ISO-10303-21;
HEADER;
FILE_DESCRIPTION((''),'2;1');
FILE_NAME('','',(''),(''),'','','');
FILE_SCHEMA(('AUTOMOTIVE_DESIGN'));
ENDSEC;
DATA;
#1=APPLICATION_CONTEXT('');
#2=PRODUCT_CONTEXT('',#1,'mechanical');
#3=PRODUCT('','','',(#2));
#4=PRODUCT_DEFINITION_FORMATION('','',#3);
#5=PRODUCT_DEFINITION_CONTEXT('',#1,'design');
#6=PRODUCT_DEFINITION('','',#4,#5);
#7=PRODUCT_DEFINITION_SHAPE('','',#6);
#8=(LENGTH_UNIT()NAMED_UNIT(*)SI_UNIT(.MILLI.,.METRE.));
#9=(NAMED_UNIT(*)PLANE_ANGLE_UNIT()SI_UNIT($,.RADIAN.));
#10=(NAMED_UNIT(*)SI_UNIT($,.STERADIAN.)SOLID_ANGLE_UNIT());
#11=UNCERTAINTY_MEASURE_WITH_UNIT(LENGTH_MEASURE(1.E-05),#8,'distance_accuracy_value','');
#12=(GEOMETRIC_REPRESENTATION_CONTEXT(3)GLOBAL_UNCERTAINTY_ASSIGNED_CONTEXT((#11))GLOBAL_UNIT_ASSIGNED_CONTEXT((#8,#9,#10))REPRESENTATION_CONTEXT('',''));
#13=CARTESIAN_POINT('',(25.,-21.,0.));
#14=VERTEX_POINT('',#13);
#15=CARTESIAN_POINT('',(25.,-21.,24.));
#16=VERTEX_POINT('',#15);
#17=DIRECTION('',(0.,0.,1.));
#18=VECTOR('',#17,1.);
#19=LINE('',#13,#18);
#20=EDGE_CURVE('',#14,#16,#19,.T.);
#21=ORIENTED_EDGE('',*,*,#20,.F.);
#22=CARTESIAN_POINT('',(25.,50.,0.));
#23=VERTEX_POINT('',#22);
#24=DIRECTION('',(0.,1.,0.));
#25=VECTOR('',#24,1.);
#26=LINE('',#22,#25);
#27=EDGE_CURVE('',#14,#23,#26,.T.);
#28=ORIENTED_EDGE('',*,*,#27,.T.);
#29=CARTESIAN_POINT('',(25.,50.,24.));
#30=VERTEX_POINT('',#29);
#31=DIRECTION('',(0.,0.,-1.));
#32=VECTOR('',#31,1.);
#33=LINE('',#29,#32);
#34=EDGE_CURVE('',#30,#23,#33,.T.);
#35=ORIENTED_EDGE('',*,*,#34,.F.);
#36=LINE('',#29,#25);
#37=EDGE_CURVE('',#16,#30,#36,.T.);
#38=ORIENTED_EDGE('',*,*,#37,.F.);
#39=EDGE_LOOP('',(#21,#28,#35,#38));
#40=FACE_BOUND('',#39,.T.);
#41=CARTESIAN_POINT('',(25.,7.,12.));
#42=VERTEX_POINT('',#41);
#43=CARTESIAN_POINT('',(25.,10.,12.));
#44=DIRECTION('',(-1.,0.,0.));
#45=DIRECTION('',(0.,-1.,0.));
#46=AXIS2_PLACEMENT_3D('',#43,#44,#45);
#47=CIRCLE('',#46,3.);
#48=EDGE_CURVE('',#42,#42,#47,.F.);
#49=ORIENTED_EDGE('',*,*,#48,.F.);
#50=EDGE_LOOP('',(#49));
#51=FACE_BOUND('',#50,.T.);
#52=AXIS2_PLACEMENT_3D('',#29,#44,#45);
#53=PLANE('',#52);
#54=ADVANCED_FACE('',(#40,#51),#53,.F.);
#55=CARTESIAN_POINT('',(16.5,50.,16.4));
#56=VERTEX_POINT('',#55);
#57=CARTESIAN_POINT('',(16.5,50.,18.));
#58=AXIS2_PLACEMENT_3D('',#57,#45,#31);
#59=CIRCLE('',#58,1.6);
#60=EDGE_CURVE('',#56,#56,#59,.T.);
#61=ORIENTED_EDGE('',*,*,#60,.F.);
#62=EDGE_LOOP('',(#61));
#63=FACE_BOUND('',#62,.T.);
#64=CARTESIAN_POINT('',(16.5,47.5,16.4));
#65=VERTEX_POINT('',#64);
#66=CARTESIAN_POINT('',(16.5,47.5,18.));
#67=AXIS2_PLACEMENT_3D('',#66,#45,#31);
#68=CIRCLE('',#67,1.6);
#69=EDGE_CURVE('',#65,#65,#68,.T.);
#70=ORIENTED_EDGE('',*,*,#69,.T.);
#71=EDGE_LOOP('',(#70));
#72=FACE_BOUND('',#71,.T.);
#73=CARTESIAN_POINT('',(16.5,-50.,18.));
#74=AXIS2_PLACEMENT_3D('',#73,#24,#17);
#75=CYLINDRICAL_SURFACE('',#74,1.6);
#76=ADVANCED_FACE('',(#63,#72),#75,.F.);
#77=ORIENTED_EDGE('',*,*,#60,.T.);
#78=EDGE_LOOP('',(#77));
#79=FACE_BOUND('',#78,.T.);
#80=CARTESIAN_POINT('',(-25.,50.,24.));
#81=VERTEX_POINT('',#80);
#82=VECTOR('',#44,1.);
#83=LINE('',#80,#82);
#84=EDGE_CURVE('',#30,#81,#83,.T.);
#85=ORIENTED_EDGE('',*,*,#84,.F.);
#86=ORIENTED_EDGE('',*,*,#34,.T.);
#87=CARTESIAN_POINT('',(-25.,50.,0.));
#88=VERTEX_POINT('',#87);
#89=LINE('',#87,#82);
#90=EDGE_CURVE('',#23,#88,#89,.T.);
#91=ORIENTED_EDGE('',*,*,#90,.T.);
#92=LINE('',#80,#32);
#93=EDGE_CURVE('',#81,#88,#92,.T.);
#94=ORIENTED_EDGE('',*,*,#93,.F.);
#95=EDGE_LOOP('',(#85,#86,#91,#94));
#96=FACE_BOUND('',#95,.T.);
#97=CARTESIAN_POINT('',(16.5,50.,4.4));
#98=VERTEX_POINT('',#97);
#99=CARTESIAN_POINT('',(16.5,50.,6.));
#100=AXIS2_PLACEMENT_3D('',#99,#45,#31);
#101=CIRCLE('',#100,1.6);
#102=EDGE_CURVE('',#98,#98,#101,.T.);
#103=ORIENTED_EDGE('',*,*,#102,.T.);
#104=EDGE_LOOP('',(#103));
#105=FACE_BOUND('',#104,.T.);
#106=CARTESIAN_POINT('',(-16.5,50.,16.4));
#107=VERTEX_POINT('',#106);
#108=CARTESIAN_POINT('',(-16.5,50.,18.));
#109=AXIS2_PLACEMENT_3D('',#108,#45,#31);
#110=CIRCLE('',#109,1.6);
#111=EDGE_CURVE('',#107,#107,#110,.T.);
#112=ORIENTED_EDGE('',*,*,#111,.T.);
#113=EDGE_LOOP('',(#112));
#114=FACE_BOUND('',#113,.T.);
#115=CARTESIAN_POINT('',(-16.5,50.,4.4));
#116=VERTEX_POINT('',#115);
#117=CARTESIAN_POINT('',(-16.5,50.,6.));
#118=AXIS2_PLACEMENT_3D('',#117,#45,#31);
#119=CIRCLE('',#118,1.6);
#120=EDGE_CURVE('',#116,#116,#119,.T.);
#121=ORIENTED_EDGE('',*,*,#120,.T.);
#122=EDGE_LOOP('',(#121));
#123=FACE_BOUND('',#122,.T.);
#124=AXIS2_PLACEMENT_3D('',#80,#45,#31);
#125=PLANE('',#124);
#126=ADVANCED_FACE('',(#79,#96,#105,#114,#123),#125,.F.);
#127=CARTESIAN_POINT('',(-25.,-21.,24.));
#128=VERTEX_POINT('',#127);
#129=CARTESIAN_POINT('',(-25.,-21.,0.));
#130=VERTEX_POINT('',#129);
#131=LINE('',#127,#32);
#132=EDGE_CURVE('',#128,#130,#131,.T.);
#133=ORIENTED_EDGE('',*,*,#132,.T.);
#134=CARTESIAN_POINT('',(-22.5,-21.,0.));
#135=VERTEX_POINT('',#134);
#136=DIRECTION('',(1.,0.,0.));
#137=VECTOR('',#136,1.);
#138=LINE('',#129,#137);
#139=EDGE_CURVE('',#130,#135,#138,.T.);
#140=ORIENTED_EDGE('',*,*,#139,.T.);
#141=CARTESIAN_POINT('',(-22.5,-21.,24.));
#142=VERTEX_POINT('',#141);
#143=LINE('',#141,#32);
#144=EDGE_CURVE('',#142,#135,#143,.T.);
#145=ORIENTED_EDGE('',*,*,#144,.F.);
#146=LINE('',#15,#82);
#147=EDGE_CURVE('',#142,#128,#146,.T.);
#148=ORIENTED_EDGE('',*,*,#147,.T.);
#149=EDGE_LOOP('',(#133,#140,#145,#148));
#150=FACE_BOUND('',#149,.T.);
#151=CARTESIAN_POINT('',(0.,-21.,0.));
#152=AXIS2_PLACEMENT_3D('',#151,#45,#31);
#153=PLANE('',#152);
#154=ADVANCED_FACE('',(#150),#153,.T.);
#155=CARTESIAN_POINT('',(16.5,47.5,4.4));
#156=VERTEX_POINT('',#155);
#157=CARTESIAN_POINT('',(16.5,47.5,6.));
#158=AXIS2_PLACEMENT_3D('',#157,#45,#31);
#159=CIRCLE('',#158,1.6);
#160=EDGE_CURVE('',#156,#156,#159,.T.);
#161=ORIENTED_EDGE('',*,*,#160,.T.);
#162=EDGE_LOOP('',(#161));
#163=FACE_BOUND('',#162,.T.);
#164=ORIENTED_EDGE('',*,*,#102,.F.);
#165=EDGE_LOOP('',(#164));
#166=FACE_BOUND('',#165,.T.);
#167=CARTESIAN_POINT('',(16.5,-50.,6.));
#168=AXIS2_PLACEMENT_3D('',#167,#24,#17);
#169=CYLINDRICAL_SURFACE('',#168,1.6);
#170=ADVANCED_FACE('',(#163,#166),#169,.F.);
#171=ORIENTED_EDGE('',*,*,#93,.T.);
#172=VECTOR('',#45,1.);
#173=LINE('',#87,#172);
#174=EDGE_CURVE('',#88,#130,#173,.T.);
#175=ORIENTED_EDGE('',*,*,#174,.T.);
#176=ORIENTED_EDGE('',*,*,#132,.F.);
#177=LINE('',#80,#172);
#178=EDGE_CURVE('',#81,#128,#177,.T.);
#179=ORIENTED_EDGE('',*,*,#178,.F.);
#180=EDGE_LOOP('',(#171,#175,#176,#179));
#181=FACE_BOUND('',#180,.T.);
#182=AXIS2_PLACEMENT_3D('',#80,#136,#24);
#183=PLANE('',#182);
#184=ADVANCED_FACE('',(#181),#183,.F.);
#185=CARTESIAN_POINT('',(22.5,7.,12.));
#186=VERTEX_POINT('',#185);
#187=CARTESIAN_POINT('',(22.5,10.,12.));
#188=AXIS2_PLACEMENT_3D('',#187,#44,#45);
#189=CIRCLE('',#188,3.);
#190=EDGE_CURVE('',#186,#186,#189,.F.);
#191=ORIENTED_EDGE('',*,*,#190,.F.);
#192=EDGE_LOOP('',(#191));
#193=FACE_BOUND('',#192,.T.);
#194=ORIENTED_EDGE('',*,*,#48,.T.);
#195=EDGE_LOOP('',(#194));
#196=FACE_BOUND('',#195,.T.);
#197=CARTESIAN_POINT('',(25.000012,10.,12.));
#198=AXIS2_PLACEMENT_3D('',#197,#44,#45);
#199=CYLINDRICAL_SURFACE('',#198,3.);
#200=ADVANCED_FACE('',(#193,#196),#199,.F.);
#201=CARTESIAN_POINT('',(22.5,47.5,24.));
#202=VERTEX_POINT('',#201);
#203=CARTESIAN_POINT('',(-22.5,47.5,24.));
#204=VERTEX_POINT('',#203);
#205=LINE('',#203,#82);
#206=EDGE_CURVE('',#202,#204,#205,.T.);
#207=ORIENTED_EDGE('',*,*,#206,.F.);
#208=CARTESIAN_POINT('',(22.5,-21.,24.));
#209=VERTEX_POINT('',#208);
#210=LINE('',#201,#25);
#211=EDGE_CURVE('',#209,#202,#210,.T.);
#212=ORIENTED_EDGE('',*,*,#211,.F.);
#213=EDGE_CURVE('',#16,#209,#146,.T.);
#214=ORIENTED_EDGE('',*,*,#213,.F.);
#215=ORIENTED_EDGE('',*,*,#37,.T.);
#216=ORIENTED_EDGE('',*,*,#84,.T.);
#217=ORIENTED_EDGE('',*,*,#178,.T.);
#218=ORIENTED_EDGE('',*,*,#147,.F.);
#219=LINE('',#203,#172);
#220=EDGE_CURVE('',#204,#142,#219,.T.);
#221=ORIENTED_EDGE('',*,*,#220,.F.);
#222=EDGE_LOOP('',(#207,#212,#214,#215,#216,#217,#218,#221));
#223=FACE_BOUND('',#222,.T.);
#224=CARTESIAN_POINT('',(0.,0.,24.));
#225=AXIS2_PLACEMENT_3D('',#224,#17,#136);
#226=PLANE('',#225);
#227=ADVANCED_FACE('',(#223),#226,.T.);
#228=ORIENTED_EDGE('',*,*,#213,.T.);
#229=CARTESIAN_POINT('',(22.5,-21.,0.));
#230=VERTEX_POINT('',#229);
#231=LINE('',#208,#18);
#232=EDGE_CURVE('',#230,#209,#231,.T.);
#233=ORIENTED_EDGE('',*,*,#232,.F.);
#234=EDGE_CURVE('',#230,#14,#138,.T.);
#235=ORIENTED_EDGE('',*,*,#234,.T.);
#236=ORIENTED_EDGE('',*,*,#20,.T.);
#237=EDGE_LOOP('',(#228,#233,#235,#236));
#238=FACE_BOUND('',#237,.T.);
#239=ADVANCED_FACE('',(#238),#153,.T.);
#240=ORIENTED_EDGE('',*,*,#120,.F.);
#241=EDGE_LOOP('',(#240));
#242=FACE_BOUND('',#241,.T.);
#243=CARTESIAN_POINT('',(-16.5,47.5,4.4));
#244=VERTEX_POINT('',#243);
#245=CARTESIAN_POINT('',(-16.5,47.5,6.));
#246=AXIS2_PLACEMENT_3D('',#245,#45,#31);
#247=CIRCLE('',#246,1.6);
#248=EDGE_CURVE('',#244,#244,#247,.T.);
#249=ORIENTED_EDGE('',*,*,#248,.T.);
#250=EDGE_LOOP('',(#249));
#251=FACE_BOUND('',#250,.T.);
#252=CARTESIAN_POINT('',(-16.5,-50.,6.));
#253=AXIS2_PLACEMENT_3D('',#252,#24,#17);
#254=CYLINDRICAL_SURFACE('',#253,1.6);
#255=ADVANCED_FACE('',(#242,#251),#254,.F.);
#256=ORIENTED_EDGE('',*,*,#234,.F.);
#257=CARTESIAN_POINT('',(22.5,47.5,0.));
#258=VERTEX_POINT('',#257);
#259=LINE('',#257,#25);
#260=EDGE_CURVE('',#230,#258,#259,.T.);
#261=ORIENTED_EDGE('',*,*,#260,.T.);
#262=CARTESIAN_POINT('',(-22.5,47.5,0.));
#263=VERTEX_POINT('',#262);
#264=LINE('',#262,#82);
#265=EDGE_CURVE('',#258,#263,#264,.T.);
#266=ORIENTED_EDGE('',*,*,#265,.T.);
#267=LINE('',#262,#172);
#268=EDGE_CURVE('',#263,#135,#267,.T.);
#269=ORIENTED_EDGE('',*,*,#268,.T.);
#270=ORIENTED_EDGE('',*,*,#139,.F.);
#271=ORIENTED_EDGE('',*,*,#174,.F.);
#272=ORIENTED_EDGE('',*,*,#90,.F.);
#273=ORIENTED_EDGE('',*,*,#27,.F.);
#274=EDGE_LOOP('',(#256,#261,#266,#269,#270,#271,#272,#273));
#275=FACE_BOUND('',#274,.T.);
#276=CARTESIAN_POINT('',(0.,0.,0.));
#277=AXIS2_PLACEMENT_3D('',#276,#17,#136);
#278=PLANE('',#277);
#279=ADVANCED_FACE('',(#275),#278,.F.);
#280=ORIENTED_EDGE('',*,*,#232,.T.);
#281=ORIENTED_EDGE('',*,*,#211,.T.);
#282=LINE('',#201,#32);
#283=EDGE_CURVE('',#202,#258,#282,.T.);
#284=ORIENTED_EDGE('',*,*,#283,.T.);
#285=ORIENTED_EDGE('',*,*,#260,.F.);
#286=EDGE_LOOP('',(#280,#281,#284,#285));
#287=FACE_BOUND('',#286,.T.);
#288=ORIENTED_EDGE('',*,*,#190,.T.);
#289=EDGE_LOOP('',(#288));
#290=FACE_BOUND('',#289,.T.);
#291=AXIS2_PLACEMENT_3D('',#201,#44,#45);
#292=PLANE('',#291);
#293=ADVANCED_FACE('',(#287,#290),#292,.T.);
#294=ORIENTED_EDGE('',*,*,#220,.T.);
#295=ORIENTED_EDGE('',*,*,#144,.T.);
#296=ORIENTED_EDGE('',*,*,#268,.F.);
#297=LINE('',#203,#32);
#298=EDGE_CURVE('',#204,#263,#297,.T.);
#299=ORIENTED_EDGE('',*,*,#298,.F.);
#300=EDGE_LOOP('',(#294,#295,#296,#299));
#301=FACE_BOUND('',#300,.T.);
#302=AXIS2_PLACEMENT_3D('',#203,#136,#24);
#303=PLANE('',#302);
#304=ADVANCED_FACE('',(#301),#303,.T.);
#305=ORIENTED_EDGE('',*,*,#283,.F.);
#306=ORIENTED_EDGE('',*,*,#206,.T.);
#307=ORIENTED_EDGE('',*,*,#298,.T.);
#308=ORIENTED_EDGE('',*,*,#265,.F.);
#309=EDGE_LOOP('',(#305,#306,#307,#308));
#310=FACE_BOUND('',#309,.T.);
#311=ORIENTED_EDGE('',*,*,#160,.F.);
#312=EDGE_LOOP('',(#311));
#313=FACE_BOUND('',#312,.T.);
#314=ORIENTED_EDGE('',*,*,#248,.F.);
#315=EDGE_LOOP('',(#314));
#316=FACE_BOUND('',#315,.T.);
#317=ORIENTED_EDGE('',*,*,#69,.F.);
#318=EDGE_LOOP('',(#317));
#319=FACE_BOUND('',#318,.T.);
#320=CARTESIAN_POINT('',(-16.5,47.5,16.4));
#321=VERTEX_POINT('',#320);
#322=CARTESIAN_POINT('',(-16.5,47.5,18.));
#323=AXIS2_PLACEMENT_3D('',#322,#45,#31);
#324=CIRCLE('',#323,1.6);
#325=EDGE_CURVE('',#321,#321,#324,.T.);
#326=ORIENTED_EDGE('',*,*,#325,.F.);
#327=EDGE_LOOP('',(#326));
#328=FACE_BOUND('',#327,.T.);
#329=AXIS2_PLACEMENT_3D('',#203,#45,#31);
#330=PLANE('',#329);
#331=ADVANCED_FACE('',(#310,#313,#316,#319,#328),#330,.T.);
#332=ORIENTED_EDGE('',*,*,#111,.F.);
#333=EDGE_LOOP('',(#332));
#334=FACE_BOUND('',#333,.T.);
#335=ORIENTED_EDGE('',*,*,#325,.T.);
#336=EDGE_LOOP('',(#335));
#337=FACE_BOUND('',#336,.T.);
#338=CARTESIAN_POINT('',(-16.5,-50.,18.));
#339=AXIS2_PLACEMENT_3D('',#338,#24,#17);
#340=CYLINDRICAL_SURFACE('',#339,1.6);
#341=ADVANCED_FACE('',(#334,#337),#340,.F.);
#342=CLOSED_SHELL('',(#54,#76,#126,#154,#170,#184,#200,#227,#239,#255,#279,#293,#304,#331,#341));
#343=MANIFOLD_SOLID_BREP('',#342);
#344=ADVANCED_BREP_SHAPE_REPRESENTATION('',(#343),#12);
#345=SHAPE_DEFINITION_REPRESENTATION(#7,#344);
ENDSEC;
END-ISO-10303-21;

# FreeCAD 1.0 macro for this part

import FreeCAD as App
import Part
import Sketcher
Q = App.Units.Quantity

doc = App.newDocument("Part")
body = doc.addObject("PartDesign::Body", "Body")

# Sketch on XY plane
sketch1 = body.newObject("Sketcher::SketchObject", "Sketch")
sketch1.AttachmentSupport = (doc.getObject("XY_Plane"), [""])
sketch1.MapMode = "FlatFace"
sketch1.addGeometry([
    Part.LineSegment(App.Vector(-25, 50, 0), App.Vector(-25, -50, 0)),  # 0
    Part.LineSegment(App.Vector(-25, -50, 0), App.Vector(25, -50, 0)),  # 1
    Part.LineSegment(App.Vector(25, -50, 0), App.Vector(25, 50, 0)),  # 2
    Part.LineSegment(App.Vector(25, 50, 0), App.Vector(-25, 50, 0)),  # 3
    Part.LineSegment(App.Vector(22.5, -47.5, 0), App.Vector(-22.5, -47.5, 0)),  # 4
    Part.LineSegment(App.Vector(-22.5, -47.5, 0), App.Vector(-22.5, 47.5, 0)),  # 5
    Part.LineSegment(App.Vector(-22.5, 47.5, 0), App.Vector(22.5, 47.5, 0)),  # 6
    Part.LineSegment(App.Vector(22.5, 47.5, 0), App.Vector(22.5, -47.5, 0)),  # 7
], False)
sketch1.addConstraint([
    Sketcher.Constraint("Coincident", 0, 2, 1, 1),
    Sketcher.Constraint("Coincident", 1, 2, 2, 1),
    Sketcher.Constraint("Coincident", 2, 2, 3, 1),
    Sketcher.Constraint("Coincident", 3, 2, 0, 1),
    Sketcher.Constraint("Coincident", 4, 2, 5, 1),
    Sketcher.Constraint("Coincident", 5, 2, 6, 1),
    Sketcher.Constraint("Coincident", 6, 2, 7, 1),
    Sketcher.Constraint("Coincident", 7, 2, 4, 1),
    Sketcher.Constraint("Vertical", 0),
    Sketcher.Constraint("Horizontal", 1),
    Sketcher.Constraint("Vertical", 2),
    Sketcher.Constraint("Horizontal", 3),
    Sketcher.Constraint("Horizontal", 4),
    Sketcher.Constraint("Vertical", 5),
    Sketcher.Constraint("Horizontal", 6),
    Sketcher.Constraint("Vertical", 7),
    Sketcher.Constraint("Symmetric", 0, 2, 2, 2, -1, 1),
    Sketcher.Constraint("Symmetric", 4, 2, 6, 2, -1, 1),
    Sketcher.Constraint("DistanceX", 1, 1, 1, 2, Q("50 mm")),
    Sketcher.Constraint("DistanceX", 4, 2, 4, 1, Q("45 mm")),
    Sketcher.Constraint("DistanceY", 0, 2, 0, 1, Q("100 mm")),
    Sketcher.Constraint("DistanceY", 5, 1, 5, 2, Q("95 mm")),
])
pad1 = body.newObject("PartDesign::Pad", "Pad")
pad1.Profile = sketch1
pad1.Length = 24

# Sketch on XZ plane
sketch2 = body.newObject("Sketcher::SketchObject", "Sketch001")
sketch2.AttachmentSupport = (doc.getObject("XZ_Plane"), [""])
sketch2.MapMode = "FlatFace"
sketch2.AttachmentOffset = App.Placement(App.Vector(0, 0, -50), App.Rotation())
sketch2.addGeometry([
    Part.Circle(App.Vector(-16.5, 6, 0), App.Vector(0, 0, 1), 1.6),
    Part.Circle(App.Vector(16.5, 6, 0), App.Vector(0, 0, 1), 1.6),
    Part.Circle(App.Vector(16.5, 18, 0), App.Vector(0, 0, 1), 1.6),
    Part.Circle(App.Vector(-16.5, 18, 0), App.Vector(0, 0, 1), 1.6),
], False)
sketch2.addConstraint([
    Sketcher.Constraint("Equal", 0, 1),
    Sketcher.Constraint("Equal", 1, 2),
    Sketcher.Constraint("Equal", 2, 3),
    Sketcher.Constraint("Symmetric", 0, 3, 1, 3, -2),
    Sketcher.Constraint("Symmetric", 2, 3, 3, 3, -2),
    Sketcher.Constraint("Vertical", 1, 3, 2, 3),
    Sketcher.Constraint("Diameter", 0, Q("3.2 mm")),
    Sketcher.Constraint("DistanceY", -1, 1, 0, 3, Q("6 mm")),
    Sketcher.Constraint("DistanceY", -1, 1, 2, 3, Q("18 mm")),
    Sketcher.Constraint("DistanceX", 0, 3, 1, 3, Q("33 mm")),
])
pocket1 = body.newObject("PartDesign::Pocket", "Pocket")
pocket1.Profile = sketch2
pocket1.Type = "ThroughAll"
pocket1.Midplane = True

# Sketch on YZ plane
sketch3 = body.newObject("Sketcher::SketchObject", "Sketch002")
sketch3.AttachmentSupport = (doc.getObject("YZ_Plane"), [""])
sketch3.MapMode = "FlatFace"
sketch3.AttachmentOffset = App.Placement(App.Vector(0, 0, 25), App.Rotation())
sketch3.addGeometry(Part.Circle(App.Vector(10, 12, 0), App.Vector(0, 0, 1), 3), False)
sketch3.addConstraint([
    Sketcher.Constraint("Diameter", 0, Q("6 mm")),
    Sketcher.Constraint("DistanceX", -1, 1, 0, 3, Q("10 mm")),
    Sketcher.Constraint("DistanceY", -1, 1, 0, 3, Q("12 mm")),
])
pocket2 = body.newObject("PartDesign::Pocket", "Pocket001")
pocket2.Profile = sketch3
pocket2.Type = "UpToFirst"

# Sketch on YZ plane
sketch4 = body.newObject("Sketcher::SketchObject", "Sketch003")
sketch4.AttachmentSupport = (doc.getObject("YZ_Plane"), [""])
sketch4.MapMode = "FlatFace"
sketch4.AttachmentOffset = App.Placement(App.Vector(0, 0, 25), App.Rotation())
sketch4.addGeometry(Part.Circle(App.Vector(-30, 12, 0), App.Vector(0, 0, 1), 4), False)
sketch4.addConstraint([
    Sketcher.Constraint("Diameter", 0, Q("8 mm")),
    Sketcher.Constraint("DistanceX", 0, 3, -1, 1, Q("30 mm")),
    Sketcher.Constraint("DistanceY", -1, 1, 0, 3, Q("12 mm")),
])
pocket3 = body.newObject("PartDesign::Pocket", "Pocket002")
pocket3.Profile = sketch4
pocket3.Type = "UpToFirst"

# Sketch on YZ plane
sketch5 = body.newObject("Sketcher::SketchObject", "Sketch004")
sketch5.AttachmentSupport = (doc.getObject("YZ_Plane"), [""])
sketch5.MapMode = "FlatFace"
sketch5.AttachmentOffset = App.Placement(App.Vector(0, 0, 25), App.Rotation())
sketch5.addGeometry([
    Part.Circle(App.Vector(10, 12, 0), App.Vector(0, 0, 1), 3),
    Part.Circle(App.Vector(-30, 12, 0), App.Vector(0, 0, 1), 4),
], False)
sketch5.addConstraint([
    Sketcher.Constraint("Horizontal", 0, 3, 1, 3),
    Sketcher.Constraint("Diameter", 0, Q("6 mm")),
    Sketcher.Constraint("Diameter", 1, Q("8 mm")),
    Sketcher.Constraint("DistanceX", -1, 1, 0, 3, Q("10 mm")),
    Sketcher.Constraint("DistanceY", -1, 1, 0, 3, Q("12 mm")),
    Sketcher.Constraint("DistanceX", 1, 3, -1, 1, Q("30 mm")),
])
pocket4 = body.newObject("PartDesign::Pocket", "Pocket003")
pocket4.Profile = sketch5
pocket4.Length = 1
pocket4.Reversed = True

# Sketch on XZ plane
sketch6 = body.newObject("Sketcher::SketchObject", "Sketch005")
sketch6.AttachmentSupport = (doc.getObject("XZ_Plane"), [""])
sketch6.MapMode = "FlatFace"
sketch6.AttachmentOffset = App.Placement(App.Vector(0, 0, 50), App.Rotation())
sketch6.addGeometry([
    Part.LineSegment(App.Vector(-25, 24, 0), App.Vector(-25, 0, 0)),
    Part.LineSegment(App.Vector(-25, 0, 0), App.Vector(25, 0, 0)),
    Part.LineSegment(App.Vector(25, 0, 0), App.Vector(25, 24, 0)),
    Part.LineSegment(App.Vector(25, 24, 0), App.Vector(-25, 24, 0)),
], False)
sketch6.addConstraint([
    Sketcher.Constraint("Coincident", 0, 2, 1, 1),
    Sketcher.Constraint("Coincident", 1, 2, 2, 1),
    Sketcher.Constraint("Coincident", 2, 2, 3, 1),
    Sketcher.Constraint("Coincident", 3, 2, 0, 1),
    Sketcher.Constraint("Vertical", 0),
    Sketcher.Constraint("Horizontal", 1),
    Sketcher.Constraint("Vertical", 2),
    Sketcher.Constraint("Horizontal", 3),
    Sketcher.Constraint("Symmetric", 0, 2, 1, 2, -1, 1),
    Sketcher.Constraint("DistanceX", 1, 1, 1, 2, Q("50 mm")),
    Sketcher.Constraint("DistanceY", 0, 2, 0, 1, Q("24 mm")),
])
pocket5 = body.newObject("PartDesign::Pocket", "Pocket004")
pocket5.Profile = sketch6
pocket5.Length = 29

doc.recompute()
